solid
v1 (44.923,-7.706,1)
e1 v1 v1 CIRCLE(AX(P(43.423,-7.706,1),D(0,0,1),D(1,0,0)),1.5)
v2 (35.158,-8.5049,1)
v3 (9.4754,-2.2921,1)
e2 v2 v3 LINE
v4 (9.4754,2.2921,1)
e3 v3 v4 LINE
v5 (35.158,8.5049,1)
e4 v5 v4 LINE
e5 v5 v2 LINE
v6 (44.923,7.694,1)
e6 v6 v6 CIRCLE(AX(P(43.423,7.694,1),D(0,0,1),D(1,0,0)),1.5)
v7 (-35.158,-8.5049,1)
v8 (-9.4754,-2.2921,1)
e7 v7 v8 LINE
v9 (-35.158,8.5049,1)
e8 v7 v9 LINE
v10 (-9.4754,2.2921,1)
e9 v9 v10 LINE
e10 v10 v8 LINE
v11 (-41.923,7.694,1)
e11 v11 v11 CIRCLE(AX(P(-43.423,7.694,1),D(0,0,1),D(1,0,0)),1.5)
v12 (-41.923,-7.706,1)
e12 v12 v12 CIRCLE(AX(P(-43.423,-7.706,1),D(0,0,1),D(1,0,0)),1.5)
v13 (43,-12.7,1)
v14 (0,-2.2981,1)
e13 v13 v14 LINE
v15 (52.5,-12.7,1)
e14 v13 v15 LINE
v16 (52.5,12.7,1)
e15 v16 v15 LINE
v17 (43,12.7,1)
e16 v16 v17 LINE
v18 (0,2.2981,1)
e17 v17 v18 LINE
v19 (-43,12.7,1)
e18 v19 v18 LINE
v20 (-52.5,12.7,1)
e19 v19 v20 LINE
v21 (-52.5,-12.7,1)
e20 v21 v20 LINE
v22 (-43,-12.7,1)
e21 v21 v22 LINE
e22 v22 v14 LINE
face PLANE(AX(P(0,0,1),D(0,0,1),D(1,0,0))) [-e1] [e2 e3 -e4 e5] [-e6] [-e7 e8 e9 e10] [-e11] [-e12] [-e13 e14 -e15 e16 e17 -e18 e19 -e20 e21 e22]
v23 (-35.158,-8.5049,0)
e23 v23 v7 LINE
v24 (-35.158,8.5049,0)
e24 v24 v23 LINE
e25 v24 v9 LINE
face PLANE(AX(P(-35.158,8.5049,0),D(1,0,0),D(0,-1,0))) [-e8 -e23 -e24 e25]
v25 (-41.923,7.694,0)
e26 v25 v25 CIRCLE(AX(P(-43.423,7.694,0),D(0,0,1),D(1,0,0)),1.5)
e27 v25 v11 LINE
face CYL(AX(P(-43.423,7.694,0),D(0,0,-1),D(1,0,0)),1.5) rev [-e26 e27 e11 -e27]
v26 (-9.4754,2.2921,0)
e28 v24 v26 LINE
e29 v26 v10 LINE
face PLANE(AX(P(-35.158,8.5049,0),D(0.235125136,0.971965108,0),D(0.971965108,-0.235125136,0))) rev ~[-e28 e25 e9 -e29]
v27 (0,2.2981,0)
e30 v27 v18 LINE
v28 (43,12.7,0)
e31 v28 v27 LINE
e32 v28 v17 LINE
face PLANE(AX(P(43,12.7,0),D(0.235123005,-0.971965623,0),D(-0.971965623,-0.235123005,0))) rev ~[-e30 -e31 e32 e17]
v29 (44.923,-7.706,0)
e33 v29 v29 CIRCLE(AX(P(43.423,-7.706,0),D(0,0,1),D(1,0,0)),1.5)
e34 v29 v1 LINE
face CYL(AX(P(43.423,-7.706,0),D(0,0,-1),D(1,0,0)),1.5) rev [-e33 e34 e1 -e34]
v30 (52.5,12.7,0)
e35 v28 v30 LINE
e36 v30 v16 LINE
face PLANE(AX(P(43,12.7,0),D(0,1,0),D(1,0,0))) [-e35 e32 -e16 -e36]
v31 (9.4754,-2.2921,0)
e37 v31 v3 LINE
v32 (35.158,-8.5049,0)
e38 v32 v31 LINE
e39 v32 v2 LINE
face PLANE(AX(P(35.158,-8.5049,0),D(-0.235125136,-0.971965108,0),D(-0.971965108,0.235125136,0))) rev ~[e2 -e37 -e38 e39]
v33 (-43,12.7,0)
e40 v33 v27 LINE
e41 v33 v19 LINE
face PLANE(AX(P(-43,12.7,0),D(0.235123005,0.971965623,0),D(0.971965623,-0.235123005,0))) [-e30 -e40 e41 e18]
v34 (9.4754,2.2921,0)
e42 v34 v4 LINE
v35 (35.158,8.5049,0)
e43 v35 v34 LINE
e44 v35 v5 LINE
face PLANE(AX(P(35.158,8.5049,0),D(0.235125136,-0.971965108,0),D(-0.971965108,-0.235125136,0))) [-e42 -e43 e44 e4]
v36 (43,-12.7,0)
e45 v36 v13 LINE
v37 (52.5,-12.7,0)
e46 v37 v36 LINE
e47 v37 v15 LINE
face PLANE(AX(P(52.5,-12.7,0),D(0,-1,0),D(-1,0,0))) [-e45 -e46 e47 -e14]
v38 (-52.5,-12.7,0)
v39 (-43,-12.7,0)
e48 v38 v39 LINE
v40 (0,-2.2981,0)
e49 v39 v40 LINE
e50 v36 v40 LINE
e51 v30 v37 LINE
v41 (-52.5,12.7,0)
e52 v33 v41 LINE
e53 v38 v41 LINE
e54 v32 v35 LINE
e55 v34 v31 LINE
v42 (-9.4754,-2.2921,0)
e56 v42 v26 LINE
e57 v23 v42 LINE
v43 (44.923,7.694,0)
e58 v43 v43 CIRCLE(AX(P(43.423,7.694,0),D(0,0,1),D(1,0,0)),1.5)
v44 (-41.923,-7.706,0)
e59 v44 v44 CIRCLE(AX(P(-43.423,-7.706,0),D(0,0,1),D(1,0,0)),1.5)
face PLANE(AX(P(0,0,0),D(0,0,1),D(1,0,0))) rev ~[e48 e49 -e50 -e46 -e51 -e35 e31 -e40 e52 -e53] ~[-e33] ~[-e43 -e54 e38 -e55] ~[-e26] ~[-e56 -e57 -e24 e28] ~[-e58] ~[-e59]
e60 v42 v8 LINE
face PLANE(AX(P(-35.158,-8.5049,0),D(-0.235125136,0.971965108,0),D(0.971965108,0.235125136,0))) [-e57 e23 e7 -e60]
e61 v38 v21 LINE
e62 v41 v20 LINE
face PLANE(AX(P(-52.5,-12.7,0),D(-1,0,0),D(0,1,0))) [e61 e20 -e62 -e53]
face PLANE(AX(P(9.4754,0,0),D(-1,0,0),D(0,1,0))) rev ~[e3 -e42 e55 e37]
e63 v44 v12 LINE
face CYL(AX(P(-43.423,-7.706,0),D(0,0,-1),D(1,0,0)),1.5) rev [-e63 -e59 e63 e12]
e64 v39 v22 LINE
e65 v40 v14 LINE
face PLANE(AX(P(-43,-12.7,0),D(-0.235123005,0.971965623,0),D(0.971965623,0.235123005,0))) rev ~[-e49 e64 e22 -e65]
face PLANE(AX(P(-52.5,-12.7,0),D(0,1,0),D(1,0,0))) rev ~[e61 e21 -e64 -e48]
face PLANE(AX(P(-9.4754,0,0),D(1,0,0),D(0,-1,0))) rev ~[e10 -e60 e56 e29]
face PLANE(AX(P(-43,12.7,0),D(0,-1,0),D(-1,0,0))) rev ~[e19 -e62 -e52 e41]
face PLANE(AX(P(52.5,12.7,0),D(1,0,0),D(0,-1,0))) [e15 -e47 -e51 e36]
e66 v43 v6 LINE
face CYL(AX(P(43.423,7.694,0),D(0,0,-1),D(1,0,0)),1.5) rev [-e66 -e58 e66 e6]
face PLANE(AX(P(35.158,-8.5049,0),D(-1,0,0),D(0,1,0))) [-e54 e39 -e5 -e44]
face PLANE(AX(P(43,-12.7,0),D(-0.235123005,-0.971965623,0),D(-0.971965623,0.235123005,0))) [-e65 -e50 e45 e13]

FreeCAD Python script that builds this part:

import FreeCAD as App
import Part
import Sketcher
from FreeCAD import Vector
Q = App.Units.Quantity

doc = App.newDocument("Part")
params = doc.addObject("Spreadsheet::Sheet", "Params")
for row, (alias, value) in enumerate([
    ("sketch1_diameter", "3 mm"),
    ("sketch1_width", "9.5 mm"),
    ("sketch1_height", "25.4 mm"),
    ("pad1_length", "1 mm"),
], start=1):
    params.set(f"A{row}", alias)
    params.set(f"B{row}", "=" + value)
    params.setAlias(f"B{row}", alias)

body = doc.addObject("PartDesign::Body", "Body")

sketch1 = doc.addObject("Sketcher::SketchObject", "Sketch")
body.addObject(sketch1)
sketch1.AttachmentSupport = (doc.XY_Plane, [""])
sketch1.MapMode = "FlatFace"
sketch1.addGeometry([
    Part.LineSegment(Vector(-52.5, 12.7, 0), Vector(-52.5, -12.7, 0)),
    Part.LineSegment(Vector(-52.5, -12.7, 0), Vector(-43, -12.7, 0)),
    Part.LineSegment(Vector(-43, -12.7, 0), Vector(0, -2.3, 0)),
    Part.LineSegment(Vector(0, -2.3, 0), Vector(43, -12.7, 0)),
    Part.LineSegment(Vector(43, -12.7, 0), Vector(52.5, -12.7, 0)),
    Part.LineSegment(Vector(52.5, -12.7, 0), Vector(52.5, 12.7, 0)),
    Part.LineSegment(Vector(52.5, 12.7, 0), Vector(43, 12.7, 0)),
    Part.LineSegment(Vector(43, 12.7, 0), Vector(0, 2.3, 0)),
    Part.LineSegment(Vector(0, 2.3, 0), Vector(-43, 12.7, 0)),
    Part.LineSegment(Vector(-43, 12.7, 0), Vector(-52.5, 12.7, 0)),
    Part.Circle(Vector(-43.4, -7.7, 0), Vector(0, 0, 1), 1.5),
    Part.LineSegment(Vector(-35.2, 8.5, 0), Vector(-9.5, 2.3, 0)),
    Part.LineSegment(Vector(-9.5, 2.3, 0), Vector(-9.5, -2.3, 0)),
    Part.LineSegment(Vector(-9.5, -2.3, 0), Vector(-35.2, -8.5, 0)),
    Part.LineSegment(Vector(-35.2, -8.5, 0), Vector(-35.2, 8.5, 0)),
    Part.Circle(Vector(-43.4, 7.7, 0), Vector(0, 0, 1), 1.5),
    Part.LineSegment(Vector(35.2, 8.5, 0), Vector(35.2, -8.5, 0)),
    Part.LineSegment(Vector(35.2, -8.5, 0), Vector(9.5, -2.3, 0)),
    Part.LineSegment(Vector(9.5, -2.3, 0), Vector(9.5, 2.3, 0)),
    Part.LineSegment(Vector(9.5, 2.3, 0), Vector(35.2, 8.5, 0)),
    Part.Circle(Vector(43.4, 7.7, 0), Vector(0, 0, 1), 1.5),
    Part.Circle(Vector(43.4, -7.7, 0), Vector(0, 0, 1), 1.5),
], False)
sketch1.addConstraint([
    Sketcher.Constraint("Coincident", 0, 2, 1, 1),
    Sketcher.Constraint("Coincident", 1, 2, 2, 1),
    Sketcher.Constraint("Coincident", 2, 2, 3, 1),
    Sketcher.Constraint("Coincident", 3, 2, 4, 1),
    Sketcher.Constraint("Coincident", 4, 2, 5, 1),
    Sketcher.Constraint("Coincident", 5, 2, 6, 1),
    Sketcher.Constraint("Coincident", 6, 2, 7, 1),
    Sketcher.Constraint("Coincident", 7, 2, 8, 1),
    Sketcher.Constraint("Coincident", 8, 2, 9, 1),
    Sketcher.Constraint("Coincident", 9, 2, 0, 1),
    Sketcher.Constraint("Coincident", 11, 2, 12, 1),
    Sketcher.Constraint("Coincident", 12, 2, 13, 1),
    Sketcher.Constraint("Coincident", 13, 2, 14, 1),
    Sketcher.Constraint("Coincident", 14, 2, 11, 1),
    Sketcher.Constraint("Coincident", 16, 2, 17, 1),
    Sketcher.Constraint("Coincident", 17, 2, 18, 1),
    Sketcher.Constraint("Coincident", 18, 2, 19, 1),
    Sketcher.Constraint("Coincident", 19, 2, 16, 1),
    Sketcher.Constraint("Vertical", 0),
    Sketcher.Constraint("Horizontal", 1),
    Sketcher.Constraint("Horizontal", 4),
    Sketcher.Constraint("Vertical", 5),
    Sketcher.Constraint("Horizontal", 6),
    Sketcher.Constraint("Horizontal", 9),
    Sketcher.Constraint("Vertical", 12),
    Sketcher.Constraint("Vertical", 14),
    Sketcher.Constraint("Vertical", 16),
    Sketcher.Constraint("Vertical", 18),
    Sketcher.Constraint("Equal", 10, 15),
    Sketcher.Constraint("Equal", 15, 20),
    Sketcher.Constraint("Equal", 20, 21),
    Sketcher.Constraint("Symmetric", 0, 2, 5, 2, -1, 1),
    Sketcher.Constraint("Symmetric", 2, 2, 7, 2, -1, 1),
    Sketcher.Constraint("Symmetric", 3, 2, 8, 2, -1, 1),
    Sketcher.Constraint("Symmetric", 14, 2, 16, 2, -1, 1),
    Sketcher.Constraint("Symmetric", 11, 2, 17, 2, -1, 1),
    Sketcher.Constraint("Symmetric", 15, 3, 20, 3, -2),
    Sketcher.Constraint("Symmetric", 10, 3, 21, 3, -2),
    Sketcher.Constraint("Symmetric", 1, 2, 3, 2, -2),
    Sketcher.Constraint("PointOnObject", 2, 2, -2),
    Sketcher.Constraint("Parallel", 2, 7),
    Sketcher.Constraint("Parallel", 8, 11),
    Sketcher.Constraint("Parallel", 7, 13),
    Sketcher.Constraint("Parallel", 13, 19),
    Sketcher.Constraint("Horizontal", 13, 2, 16, 2),
    Sketcher.Constraint("Horizontal", 11, 2, 18, 2),
    Sketcher.Constraint("Vertical", 10, 3, 15, 3),
    Sketcher.Constraint("Diameter", 10, Q("3 mm")),
    Sketcher.Constraint("DistanceY", 10, 3, 15, 3, Q("15.4 mm")),
    Sketcher.Constraint("DistanceX", 1, 1, 1, 2, Q("9.5 mm")),
    Sketcher.Constraint("DistanceY", 0, 2, 0, 1, Q("25.4 mm")),
    Sketcher.Constraint("DistanceX", 1, 2, -1, 1, Q("43 mm")),
    Sketcher.Constraint("Angle", 2, Q("13.5989 deg")),
    Sketcher.Constraint("DistanceX", 0, 2, 10, 3, Q("9.077 mm")),
    Sketcher.Constraint("DistanceY", 12, 2, 12, 1, Q("4.5842 mm")),
    Sketcher.Constraint("DistanceY", 14, 1, 14, 2, Q("17.0098 mm")),
    Sketcher.Constraint("DistanceY", 10, 3, -1, 1, Q("7.706 mm")),
    Sketcher.Constraint("DistanceX", 13, 2, -1, 1, Q("35.158 mm")),
])
sketch1.setExpression("Constraints[47]", "Params.sketch1_diameter")
sketch1.setExpression("Constraints[49]", "Params.sketch1_width")
sketch1.setExpression("Constraints[50]", "Params.sketch1_height")
pad1 = doc.addObject("PartDesign::Pad", "Pad")
body.addObject(pad1)
pad1.Profile = sketch1
pad1.setExpression("Length", "Params.pad1_length")

doc.recompute()
